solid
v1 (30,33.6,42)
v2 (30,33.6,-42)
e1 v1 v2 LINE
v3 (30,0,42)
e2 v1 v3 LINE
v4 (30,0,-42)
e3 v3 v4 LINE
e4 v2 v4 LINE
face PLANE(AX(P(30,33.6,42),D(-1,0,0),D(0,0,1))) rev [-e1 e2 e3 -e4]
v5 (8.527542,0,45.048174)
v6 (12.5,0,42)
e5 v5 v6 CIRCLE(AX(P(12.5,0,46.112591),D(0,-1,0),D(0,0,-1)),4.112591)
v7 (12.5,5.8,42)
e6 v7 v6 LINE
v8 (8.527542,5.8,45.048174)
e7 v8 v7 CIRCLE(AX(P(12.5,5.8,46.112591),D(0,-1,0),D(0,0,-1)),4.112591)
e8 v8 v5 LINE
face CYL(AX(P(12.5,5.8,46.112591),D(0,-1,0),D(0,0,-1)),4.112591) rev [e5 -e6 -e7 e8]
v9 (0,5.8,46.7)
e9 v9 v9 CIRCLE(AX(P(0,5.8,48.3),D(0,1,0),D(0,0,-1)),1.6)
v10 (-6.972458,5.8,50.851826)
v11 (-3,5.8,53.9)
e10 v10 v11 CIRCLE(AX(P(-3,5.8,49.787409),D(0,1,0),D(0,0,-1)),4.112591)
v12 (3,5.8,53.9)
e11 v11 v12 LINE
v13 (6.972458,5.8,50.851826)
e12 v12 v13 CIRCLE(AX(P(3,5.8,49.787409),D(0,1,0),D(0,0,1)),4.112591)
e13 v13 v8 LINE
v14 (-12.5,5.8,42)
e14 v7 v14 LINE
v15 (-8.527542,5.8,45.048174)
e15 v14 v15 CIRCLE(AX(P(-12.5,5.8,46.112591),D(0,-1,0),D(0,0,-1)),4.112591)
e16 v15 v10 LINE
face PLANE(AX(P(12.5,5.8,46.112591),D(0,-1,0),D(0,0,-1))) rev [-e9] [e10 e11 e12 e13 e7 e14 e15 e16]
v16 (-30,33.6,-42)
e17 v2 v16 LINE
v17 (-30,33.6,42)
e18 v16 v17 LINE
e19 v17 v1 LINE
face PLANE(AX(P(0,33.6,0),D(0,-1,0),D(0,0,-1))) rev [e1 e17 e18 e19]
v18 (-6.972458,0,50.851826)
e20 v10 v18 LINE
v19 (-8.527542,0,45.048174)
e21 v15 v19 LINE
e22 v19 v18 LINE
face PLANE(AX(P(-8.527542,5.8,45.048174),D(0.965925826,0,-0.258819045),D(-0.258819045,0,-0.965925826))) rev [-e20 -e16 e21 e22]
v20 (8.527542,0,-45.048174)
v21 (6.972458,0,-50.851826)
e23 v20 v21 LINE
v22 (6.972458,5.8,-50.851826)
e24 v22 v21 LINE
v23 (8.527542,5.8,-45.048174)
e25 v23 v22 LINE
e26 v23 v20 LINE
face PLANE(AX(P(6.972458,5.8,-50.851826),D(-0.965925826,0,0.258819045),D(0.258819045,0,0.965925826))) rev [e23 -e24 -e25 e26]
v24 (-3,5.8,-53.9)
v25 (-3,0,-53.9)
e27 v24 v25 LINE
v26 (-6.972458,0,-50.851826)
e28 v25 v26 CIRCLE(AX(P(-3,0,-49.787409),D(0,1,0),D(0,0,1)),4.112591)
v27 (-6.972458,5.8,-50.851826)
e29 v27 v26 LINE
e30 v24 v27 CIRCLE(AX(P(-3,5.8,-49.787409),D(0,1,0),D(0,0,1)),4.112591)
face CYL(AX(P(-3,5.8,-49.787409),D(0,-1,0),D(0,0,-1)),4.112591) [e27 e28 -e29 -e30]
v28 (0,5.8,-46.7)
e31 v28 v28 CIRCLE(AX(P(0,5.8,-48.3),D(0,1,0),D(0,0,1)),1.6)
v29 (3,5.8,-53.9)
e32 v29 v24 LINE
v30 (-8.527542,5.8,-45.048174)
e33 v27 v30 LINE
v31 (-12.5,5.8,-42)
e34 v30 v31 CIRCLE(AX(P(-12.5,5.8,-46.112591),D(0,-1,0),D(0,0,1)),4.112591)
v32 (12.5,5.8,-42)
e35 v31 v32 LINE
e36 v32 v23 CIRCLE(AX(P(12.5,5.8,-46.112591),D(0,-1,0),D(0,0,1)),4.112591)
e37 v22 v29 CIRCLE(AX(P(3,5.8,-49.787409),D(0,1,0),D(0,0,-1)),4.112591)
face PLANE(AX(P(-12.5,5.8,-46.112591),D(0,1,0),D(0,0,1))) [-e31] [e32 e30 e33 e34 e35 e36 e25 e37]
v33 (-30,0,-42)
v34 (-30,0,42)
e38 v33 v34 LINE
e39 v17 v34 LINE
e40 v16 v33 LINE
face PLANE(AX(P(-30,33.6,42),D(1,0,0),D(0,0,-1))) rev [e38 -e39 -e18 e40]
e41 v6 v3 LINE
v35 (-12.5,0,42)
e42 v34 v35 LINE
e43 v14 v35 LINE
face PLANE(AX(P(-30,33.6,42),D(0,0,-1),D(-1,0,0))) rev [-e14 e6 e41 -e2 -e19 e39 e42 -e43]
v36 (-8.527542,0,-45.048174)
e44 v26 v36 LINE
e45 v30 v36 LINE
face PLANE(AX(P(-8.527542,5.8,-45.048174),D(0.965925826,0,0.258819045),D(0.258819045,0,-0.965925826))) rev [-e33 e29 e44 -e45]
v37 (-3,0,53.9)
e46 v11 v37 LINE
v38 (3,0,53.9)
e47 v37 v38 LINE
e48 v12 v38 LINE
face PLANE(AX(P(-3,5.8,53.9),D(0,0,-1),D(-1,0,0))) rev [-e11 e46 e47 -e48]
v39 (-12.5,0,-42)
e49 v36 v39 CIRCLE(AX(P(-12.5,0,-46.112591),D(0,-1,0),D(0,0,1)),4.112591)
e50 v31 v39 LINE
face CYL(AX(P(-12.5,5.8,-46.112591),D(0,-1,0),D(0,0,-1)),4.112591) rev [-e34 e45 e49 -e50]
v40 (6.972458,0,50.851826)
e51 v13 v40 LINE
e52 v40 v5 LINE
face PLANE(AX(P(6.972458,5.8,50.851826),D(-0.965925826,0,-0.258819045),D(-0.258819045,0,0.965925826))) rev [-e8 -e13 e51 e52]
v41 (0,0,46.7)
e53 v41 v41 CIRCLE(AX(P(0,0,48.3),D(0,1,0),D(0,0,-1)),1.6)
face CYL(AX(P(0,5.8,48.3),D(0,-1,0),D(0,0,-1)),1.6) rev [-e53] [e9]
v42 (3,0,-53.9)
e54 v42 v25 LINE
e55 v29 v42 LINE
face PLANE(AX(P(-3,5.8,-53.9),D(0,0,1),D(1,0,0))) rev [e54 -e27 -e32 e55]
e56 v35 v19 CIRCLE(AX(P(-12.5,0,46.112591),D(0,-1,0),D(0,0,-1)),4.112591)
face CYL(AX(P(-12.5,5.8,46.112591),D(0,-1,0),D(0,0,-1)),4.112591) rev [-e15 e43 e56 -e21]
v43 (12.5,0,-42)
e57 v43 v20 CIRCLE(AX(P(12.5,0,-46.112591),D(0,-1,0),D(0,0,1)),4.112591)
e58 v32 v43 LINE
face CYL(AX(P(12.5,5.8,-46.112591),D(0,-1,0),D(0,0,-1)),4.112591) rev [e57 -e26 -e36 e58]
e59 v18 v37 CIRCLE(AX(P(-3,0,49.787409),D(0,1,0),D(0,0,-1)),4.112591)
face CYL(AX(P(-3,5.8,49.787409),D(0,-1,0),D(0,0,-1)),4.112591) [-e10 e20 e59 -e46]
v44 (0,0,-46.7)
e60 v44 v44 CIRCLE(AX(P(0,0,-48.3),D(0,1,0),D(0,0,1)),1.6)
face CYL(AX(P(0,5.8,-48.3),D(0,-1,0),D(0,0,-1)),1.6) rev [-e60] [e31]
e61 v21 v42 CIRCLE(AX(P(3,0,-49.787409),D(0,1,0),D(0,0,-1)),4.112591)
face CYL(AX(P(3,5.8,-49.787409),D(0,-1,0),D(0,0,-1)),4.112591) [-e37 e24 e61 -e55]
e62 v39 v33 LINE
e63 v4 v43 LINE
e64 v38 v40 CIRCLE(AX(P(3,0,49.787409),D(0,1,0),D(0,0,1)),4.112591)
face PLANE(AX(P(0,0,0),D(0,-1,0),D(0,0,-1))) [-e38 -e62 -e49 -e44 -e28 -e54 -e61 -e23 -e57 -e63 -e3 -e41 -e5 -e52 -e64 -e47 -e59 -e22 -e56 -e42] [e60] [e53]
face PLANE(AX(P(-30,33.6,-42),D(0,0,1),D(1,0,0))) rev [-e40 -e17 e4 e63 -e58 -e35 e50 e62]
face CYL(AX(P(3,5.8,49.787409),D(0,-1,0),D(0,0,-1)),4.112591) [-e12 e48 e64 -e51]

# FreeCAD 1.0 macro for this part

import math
import FreeCAD as App
import Part
import Sketcher
from FreeCAD import Vector
Q = App.Units.Quantity

doc = App.newDocument("Part")
body = doc.addObject("PartDesign::Body", "Body")

# Sketch on XZ plane
sketch1 = body.newObject("Sketcher::SketchObject", "Sketch")
sketch1.AttachmentSupport = (doc.getObject("XZ_Plane"), [""])
sketch1.MapMode = "FlatFace"
sketch1.addGeometry(Part.LineSegment(Vector(-30, -42, 0), Vector(-30, 42, 0)), False)
sketch1.addGeometry(Part.LineSegment(Vector(-30, 42, 0), Vector(30, 42, 0)), False)
sketch1.addGeometry(Part.LineSegment(Vector(30, 42, 0), Vector(30, -42, 0)), False)
sketch1.addGeometry(Part.LineSegment(Vector(30, -42, 0), Vector(-30, -42, 0)), False)
sketch1.addConstraint(Sketcher.Constraint("Coincident", 0, 2, 1, 1))
sketch1.addConstraint(Sketcher.Constraint("Coincident", 1, 2, 2, 1))
sketch1.addConstraint(Sketcher.Constraint("Coincident", 2, 2, 3, 1))
sketch1.addConstraint(Sketcher.Constraint("Coincident", 3, 2, 0, 1))
sketch1.addConstraint(Sketcher.Constraint("Vertical", 0))
sketch1.addConstraint(Sketcher.Constraint("Horizontal", 1))
sketch1.addConstraint(Sketcher.Constraint("Vertical", 2))
sketch1.addConstraint(Sketcher.Constraint("Horizontal", 3))
sketch1.addConstraint(Sketcher.Constraint("Symmetric", 0, 2, 2, 2, -1, 1))
sketch1.addConstraint(Sketcher.Constraint("DistanceX", 1, 1, 1, 2, 60.0))
sketch1.addConstraint(Sketcher.Constraint("DistanceY", 0, 1, 0, 2, 84.0))
pad1 = body.newObject("PartDesign::Pad", "Pad")
pad1.Profile = sketch1
pad1.Length = 33.6
pad1.Reversed = True

# Sketch on XZ plane
sketch2 = body.newObject("Sketcher::SketchObject", "Sketch001")
sketch2.AttachmentSupport = (doc.getObject("XZ_Plane"), [""])
sketch2.MapMode = "FlatFace"
sketch2.addGeometry(Part.LineSegment(Vector(-12.5, -42, 0), Vector(12.5, -42, 0)), False)
sketch2.addGeometry(Part.ArcOfCircle(Part.Circle(Vector(12.5, -46.112591, 0), Vector(0, 0, 1), 4.112591), math.radians(90), math.radians(165)), False)
sketch2.addGeometry(Part.LineSegment(Vector(8.527542, -45.048174, 0), Vector(6.972458, -50.851826, 0)), False)
sketch2.addGeometry(Part.ArcOfCircle(Part.Circle(Vector(3, -49.787409, 0), Vector(0, 0, 1), 4.112591), math.radians(-90), math.radians(-15)), False)
sketch2.addGeometry(Part.LineSegment(Vector(3, -53.9, 0), Vector(-3, -53.9, 0)), False)
sketch2.addGeometry(Part.ArcOfCircle(Part.Circle(Vector(-3, -49.787409, 0), Vector(0, 0, 1), 4.112591), math.radians(-165), math.radians(-90)), False)
sketch2.addGeometry(Part.LineSegment(Vector(-6.972458, -50.851826, 0), Vector(-8.527542, -45.048174, 0)), False)
sketch2.addGeometry(Part.ArcOfCircle(Part.Circle(Vector(-12.5, -46.112591, 0), Vector(0, 0, 1), 4.112591), math.radians(15), math.radians(90)), False)
sketch2.addGeometry(Part.Circle(Vector(0, -48.3, 0), Vector(0, 0, 1), 1.6), False)
sketch2.addGeometry(Part.LineSegment(Vector(6.972458, 50.851826, 0), Vector(8.527542, 45.048174, 0)), False)
sketch2.addGeometry(Part.ArcOfCircle(Part.Circle(Vector(12.5, 46.112591, 0), Vector(0, 0, 1), 4.112591), math.radians(-165), math.radians(-90)), False)
sketch2.addGeometry(Part.LineSegment(Vector(12.5, 42, 0), Vector(-12.5, 42, 0)), False)
sketch2.addGeometry(Part.ArcOfCircle(Part.Circle(Vector(-12.5, 46.112591, 0), Vector(0, 0, 1), 4.112591), math.radians(-90), math.radians(-15)), False)
sketch2.addGeometry(Part.LineSegment(Vector(-8.527542, 45.048174, 0), Vector(-6.972458, 50.851826, 0)), False)
sketch2.addGeometry(Part.ArcOfCircle(Part.Circle(Vector(-3, 49.787409, 0), Vector(0, 0, 1), 4.112591), math.radians(90), math.radians(165)), False)
sketch2.addGeometry(Part.LineSegment(Vector(-3, 53.9, 0), Vector(3, 53.9, 0)), False)
sketch2.addGeometry(Part.ArcOfCircle(Part.Circle(Vector(3, 49.787409, 0), Vector(0, 0, 1), 4.112591), math.radians(15), math.radians(90)), False)
sketch2.addGeometry(Part.Circle(Vector(0, 48.3, 0), Vector(0, 0, 1), 1.6), False)
sketch2.addConstraint(Sketcher.Constraint("Tangent", 0, 2, 1, 1))
sketch2.addConstraint(Sketcher.Constraint("Tangent", 1, 2, 2, 1))
sketch2.addConstraint(Sketcher.Constraint("Tangent", 2, 2, 3, 2))
sketch2.addConstraint(Sketcher.Constraint("Tangent", 3, 1, 4, 1))
sketch2.addConstraint(Sketcher.Constraint("Tangent", 4, 2, 5, 2))
sketch2.addConstraint(Sketcher.Constraint("Tangent", 5, 1, 6, 1))
sketch2.addConstraint(Sketcher.Constraint("Tangent", 6, 2, 7, 1))
sketch2.addConstraint(Sketcher.Constraint("Tangent", 7, 2, 0, 1))
sketch2.addConstraint(Sketcher.Constraint("Tangent", 9, 2, 10, 1))
sketch2.addConstraint(Sketcher.Constraint("Tangent", 10, 2, 11, 1))
sketch2.addConstraint(Sketcher.Constraint("Tangent", 11, 2, 12, 1))
sketch2.addConstraint(Sketcher.Constraint("Tangent", 12, 2, 13, 1))
sketch2.addConstraint(Sketcher.Constraint("Tangent", 13, 2, 14, 2))
sketch2.addConstraint(Sketcher.Constraint("Tangent", 14, 1, 15, 1))
sketch2.addConstraint(Sketcher.Constraint("Tangent", 15, 2, 16, 2))
sketch2.addConstraint(Sketcher.Constraint("Tangent", 16, 1, 9, 1))
sketch2.addConstraint(Sketcher.Constraint("Horizontal", 0))
sketch2.addConstraint(Sketcher.Constraint("Horizontal", 4))
sketch2.addConstraint(Sketcher.Constraint("Horizontal", 11))
sketch2.addConstraint(Sketcher.Constraint("Horizontal", 15))
sketch2.addConstraint(Sketcher.Constraint("Equal", 1, 3))
sketch2.addConstraint(Sketcher.Constraint("Equal", 3, 5))
sketch2.addConstraint(Sketcher.Constraint("Equal", 5, 7))
sketch2.addConstraint(Sketcher.Constraint("Equal", 7, 10))
sketch2.addConstraint(Sketcher.Constraint("Equal", 10, 12))
sketch2.addConstraint(Sketcher.Constraint("Equal", 12, 14))
sketch2.addConstraint(Sketcher.Constraint("Equal", 14, 16))
sketch2.addConstraint(Sketcher.Constraint("Equal", 8, 17))
sketch2.addConstraint(Sketcher.Constraint("Symmetric", 7, 3, 10, 3, -1, 1))
sketch2.addConstraint(Sketcher.Constraint("Symmetric", 3, 3, 14, 3, -1, 1))
sketch2.addConstraint(Sketcher.Constraint("Symmetric", 8, 3, 17, 3, -1, 1))
sketch2.addConstraint(Sketcher.Constraint("Symmetric", 2, 2, 5, 1, -2))
sketch2.addConstraint(Sketcher.Constraint("Symmetric", 9, 2, 12, 2, -2))
sketch2.addConstraint(Sketcher.Constraint("PointOnObject", 8, 3, -2))
sketch2.addConstraint(Sketcher.Constraint("Diameter", 8, 3.2))
sketch2.addConstraint(Sketcher.Constraint("DistanceX", 0, 1, 0, 2, 25.0))
sketch2.addConstraint(Sketcher.Constraint("DistanceX", 4, 2, 4, 1, 6.0))
sketch2.addConstraint(Sketcher.Constraint("Angle", 2, Q("-105 deg")))
sketch2.addConstraint(Sketcher.Constraint("DistanceY", 0, 2, -1, 1, 42.0))
sketch2.addConstraint(Sketcher.Constraint("DistanceY", 8, 3, -1, 1, 48.3))
sketch2.addConstraint(Sketcher.Constraint("DistanceY", 3, 1, -1, 1, 53.9))
pad2 = body.newObject("PartDesign::Pad", "Pad001")
pad2.Profile = sketch2
pad2.Length = 5.8
pad2.Reversed = True

doc.recompute()
